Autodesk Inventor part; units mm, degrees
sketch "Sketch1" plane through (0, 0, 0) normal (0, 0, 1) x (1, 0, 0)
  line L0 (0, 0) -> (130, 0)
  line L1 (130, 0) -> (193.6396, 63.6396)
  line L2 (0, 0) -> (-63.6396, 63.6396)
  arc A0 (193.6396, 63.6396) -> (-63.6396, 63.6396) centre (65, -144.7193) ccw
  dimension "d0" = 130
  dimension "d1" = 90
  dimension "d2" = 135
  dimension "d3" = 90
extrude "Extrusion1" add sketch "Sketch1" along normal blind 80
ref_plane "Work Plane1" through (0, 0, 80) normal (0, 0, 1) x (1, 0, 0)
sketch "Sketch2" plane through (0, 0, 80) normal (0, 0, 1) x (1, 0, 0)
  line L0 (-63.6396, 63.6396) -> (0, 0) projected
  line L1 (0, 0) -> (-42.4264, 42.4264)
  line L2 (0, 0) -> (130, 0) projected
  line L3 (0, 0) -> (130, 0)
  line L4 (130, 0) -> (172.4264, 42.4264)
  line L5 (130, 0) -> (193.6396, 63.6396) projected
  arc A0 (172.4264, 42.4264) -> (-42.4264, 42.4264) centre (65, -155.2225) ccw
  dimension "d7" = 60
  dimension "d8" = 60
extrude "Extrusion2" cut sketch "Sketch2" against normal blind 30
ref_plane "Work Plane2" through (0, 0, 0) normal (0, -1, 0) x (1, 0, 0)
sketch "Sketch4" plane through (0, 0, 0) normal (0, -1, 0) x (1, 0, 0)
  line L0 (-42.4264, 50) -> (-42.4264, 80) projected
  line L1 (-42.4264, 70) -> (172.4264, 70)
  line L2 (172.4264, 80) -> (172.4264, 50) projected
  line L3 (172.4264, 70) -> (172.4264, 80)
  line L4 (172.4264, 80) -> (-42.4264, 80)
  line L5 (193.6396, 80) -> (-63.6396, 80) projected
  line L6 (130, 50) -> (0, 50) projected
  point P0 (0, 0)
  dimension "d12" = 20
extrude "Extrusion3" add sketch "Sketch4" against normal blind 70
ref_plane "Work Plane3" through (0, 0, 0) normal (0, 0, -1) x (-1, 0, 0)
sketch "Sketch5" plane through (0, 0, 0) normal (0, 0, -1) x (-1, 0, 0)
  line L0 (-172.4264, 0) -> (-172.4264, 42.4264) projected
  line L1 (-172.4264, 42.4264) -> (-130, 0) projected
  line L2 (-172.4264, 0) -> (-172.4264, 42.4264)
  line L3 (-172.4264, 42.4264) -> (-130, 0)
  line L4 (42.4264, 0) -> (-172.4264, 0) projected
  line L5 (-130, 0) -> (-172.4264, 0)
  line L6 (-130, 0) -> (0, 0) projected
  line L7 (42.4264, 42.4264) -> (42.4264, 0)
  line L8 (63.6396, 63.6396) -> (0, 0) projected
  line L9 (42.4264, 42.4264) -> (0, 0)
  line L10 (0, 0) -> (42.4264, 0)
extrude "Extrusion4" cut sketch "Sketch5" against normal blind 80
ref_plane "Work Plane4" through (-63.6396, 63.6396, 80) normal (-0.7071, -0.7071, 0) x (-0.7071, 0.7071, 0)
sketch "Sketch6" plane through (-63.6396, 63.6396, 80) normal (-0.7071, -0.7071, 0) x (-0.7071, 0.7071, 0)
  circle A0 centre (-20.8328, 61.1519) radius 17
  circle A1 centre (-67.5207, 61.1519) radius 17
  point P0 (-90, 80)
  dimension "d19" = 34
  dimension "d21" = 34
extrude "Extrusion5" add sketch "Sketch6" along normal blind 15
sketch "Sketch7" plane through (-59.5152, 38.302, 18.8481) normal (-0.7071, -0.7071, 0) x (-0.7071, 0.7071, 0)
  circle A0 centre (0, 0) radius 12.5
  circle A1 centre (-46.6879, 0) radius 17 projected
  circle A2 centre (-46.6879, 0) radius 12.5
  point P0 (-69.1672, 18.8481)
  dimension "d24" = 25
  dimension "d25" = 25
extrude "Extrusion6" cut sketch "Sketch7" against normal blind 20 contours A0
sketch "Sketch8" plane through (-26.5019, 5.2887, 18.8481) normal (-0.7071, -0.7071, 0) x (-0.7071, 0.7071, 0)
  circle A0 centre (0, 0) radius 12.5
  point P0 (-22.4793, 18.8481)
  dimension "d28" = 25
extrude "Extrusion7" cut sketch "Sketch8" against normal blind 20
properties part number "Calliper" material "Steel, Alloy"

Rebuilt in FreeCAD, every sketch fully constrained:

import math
import FreeCAD as App
import Part
import Sketcher

doc = App.newDocument("Part")
body = doc.addObject("PartDesign::Body", "Body")

# Sketch on XY plane
sketch1 = body.newObject("Sketcher::SketchObject", "Sketch")
sketch1.AttachmentSupport = (doc.getObject("XY_Plane"), [""])
sketch1.MapMode = "FlatFace"
sketch1.addGeometry([
    Part.LineSegment(App.Vector(-64, 64, 0), App.Vector(0, 0, 0)),
    Part.LineSegment(App.Vector(0, 0, 0), App.Vector(130, 0, 0)),
    Part.LineSegment(App.Vector(130, 0, 0), App.Vector(194, 64, 0)),
    Part.ArcOfCircle(Part.Circle(App.Vector(65, -145, 0), App.Vector(0, 0, 1), 245), math.radians(58), math.radians(122)),
], False)
sketch1.addConstraint([
    Sketcher.Constraint("Coincident", 0, 2, 1, 1),
    Sketcher.Constraint("Coincident", 1, 2, 2, 1),
    Sketcher.Constraint("Coincident", 2, 2, 3, 1),
    Sketcher.Constraint("Coincident", 3, 2, 0, 1),
    Sketcher.Constraint("Horizontal", 1),
    Sketcher.Constraint("Coincident", 0, 2, -1, 1),
    Sketcher.Constraint("Perpendicular", 0, 2),
    Sketcher.Constraint("Horizontal", 2, 2, 3, 2),
    Sketcher.Constraint("Equal", 0, 2),
    Sketcher.Constraint("DistanceX", 1, 1, 1, 2, 130.0),
    Sketcher.Constraint("Distance", 0, 90.0),
    Sketcher.Constraint("Radius", 3, 244.8705),
])
pad1 = body.newObject("PartDesign::Pad", "Pad")
pad1.Profile = sketch1
pad1.Length = 80

# Sketch on XY plane
sketch2 = body.newObject("Sketcher::SketchObject", "Sketch001")
sketch2.AttachmentSupport = (doc.getObject("XY_Plane"), [""])
sketch2.MapMode = "FlatFace"
sketch2.AttachmentOffset = App.Placement(App.Vector(0, 0, 80), App.Rotation())
sketch2.addGeometry([
    Part.ArcOfCircle(Part.Circle(App.Vector(65, -155, 0), App.Vector(0, 0, 1), 225), math.radians(61), math.radians(119)),
    Part.LineSegment(App.Vector(-42, 42, 0), App.Vector(0, 0, 0)),
    Part.LineSegment(App.Vector(0, 0, 0), App.Vector(130, 0, 0)),
    Part.LineSegment(App.Vector(130, 0, 0), App.Vector(172, 42, 0)),
], False)
sketch2.addConstraint([
    Sketcher.Constraint("Coincident", 0, 2, 1, 1),
    Sketcher.Constraint("Coincident", 1, 2, 2, 1),
    Sketcher.Constraint("Coincident", 2, 2, 3, 1),
    Sketcher.Constraint("Coincident", 3, 2, 0, 1),
    Sketcher.Constraint("Horizontal", 2),
    Sketcher.Constraint("Coincident", 1, 2, -1, 1),
    Sketcher.Constraint("Perpendicular", 1, 3),
    Sketcher.Constraint("Horizontal", 0, 2, 3, 2),
    Sketcher.Constraint("Equal", 1, 3),
    Sketcher.Constraint("Distance", 1, 60.0),
    Sketcher.Constraint("DistanceX", 2, 1, 2, 2, 130.0),
    Sketcher.Constraint("Radius", 0, 224.9567),
])
pocket1 = body.newObject("PartDesign::Pocket", "Pocket")
pocket1.Profile = sketch2
pocket1.Length = 30

# Sketch on XZ plane
sketch3 = body.newObject("Sketcher::SketchObject", "Sketch002")
sketch3.AttachmentSupport = (doc.getObject("XZ_Plane"), [""])
sketch3.MapMode = "FlatFace"
sketch3.addGeometry([
    Part.LineSegment(App.Vector(-42, 80, 0), App.Vector(-42, 70, 0)),
    Part.LineSegment(App.Vector(-42, 70, 0), App.Vector(172, 70, 0)),
    Part.LineSegment(App.Vector(172, 70, 0), App.Vector(172, 80, 0)),
    Part.LineSegment(App.Vector(172, 80, 0), App.Vector(-42, 80, 0)),
], False)
sketch3.addConstraint([
    Sketcher.Constraint("Coincident", 0, 2, 1, 1),
    Sketcher.Constraint("Coincident", 1, 2, 2, 1),
    Sketcher.Constraint("Coincident", 2, 2, 3, 1),
    Sketcher.Constraint("Coincident", 3, 2, 0, 1),
    Sketcher.Constraint("Vertical", 0),
    Sketcher.Constraint("Horizontal", 1),
    Sketcher.Constraint("Vertical", 2),
    Sketcher.Constraint("Horizontal", 3),
    Sketcher.Constraint("DistanceY", 0, 2, 0, 1, 10.0),
    Sketcher.Constraint("DistanceY", -1, 1, 0, 2, 70.0),
    Sketcher.Constraint("DistanceX", 1, 1, 1, 2, 214.8528),
    Sketcher.Constraint("DistanceX", 0, 2, -1, 1, 42.4264),
])
pad2 = body.newObject("PartDesign::Pad", "Pad001")
pad2.Profile = sketch3
pad2.Length = 70
pad2.Reversed = True

# Sketch on XY plane
sketch4 = body.newObject("Sketcher::SketchObject", "Sketch003")
sketch4.AttachmentSupport = (doc.getObject("XY_Plane"), [""])
sketch4.MapMode = "FlatFace"
sketch4.addGeometry([
    Part.LineSegment(App.Vector(-42, 42, 0), App.Vector(0, 0, 0)),  # 0
    Part.LineSegment(App.Vector(0, 0, 0), App.Vector(-42, 0, 0)),  # 1
    Part.LineSegment(App.Vector(-42, 0, 0), App.Vector(-42, 42, 0)),  # 2
    Part.LineSegment(App.Vector(172, 42, 0), App.Vector(172, 0, 0)),  # 3
    Part.LineSegment(App.Vector(172, 0, 0), App.Vector(130, 0, 0)),  # 4
    Part.LineSegment(App.Vector(130, 0, 0), App.Vector(172, 42, 0)),  # 5
], False)
sketch4.addConstraint([
    Sketcher.Constraint("Coincident", 0, 2, 1, 1),
    Sketcher.Constraint("Coincident", 1, 2, 2, 1),
    Sketcher.Constraint("Coincident", 2, 2, 0, 1),
    Sketcher.Constraint("Coincident", 3, 2, 4, 1),
    Sketcher.Constraint("Coincident", 4, 2, 5, 1),
    Sketcher.Constraint("Coincident", 5, 2, 3, 1),
    Sketcher.Constraint("Horizontal", 1),
    Sketcher.Constraint("Vertical", 2),
    Sketcher.Constraint("Vertical", 3),
    Sketcher.Constraint("Horizontal", 4),
    Sketcher.Constraint("Coincident", 0, 2, -1, 1),
    Sketcher.Constraint("PointOnObject", 3, 2, -1),
    Sketcher.Constraint("Perpendicular", 0, 5),
    Sketcher.Constraint("Horizontal", 2, 2, 5, 2),
    Sketcher.Constraint("Equal", 1, 4),
    Sketcher.Constraint("Distance", 0, 60.0),
    Sketcher.Constraint("DistanceX", -1, 1, 4, 2, 130.0),
])
pocket2 = body.newObject("PartDesign::Pocket", "Pocket001")
pocket2.Profile = sketch4
pocket2.Length = 80
pocket2.Reversed = True

# Sketch on an angled plane
sketch5 = body.newObject("Sketcher::SketchObject", "Sketch004")
sketch5.Placement = App.Placement(App.Vector(-63.6396, 63.6396, 80), App.Rotation(App.Vector(-0.707106781, 0.707106781, 0), App.Vector(0, 0, -0.999999999), App.Vector(-0.707106781, -0.707106781, 0), "ZXY"))
sketch5.addGeometry([
    Part.Circle(App.Vector(-21, 61, 0), App.Vector(0, 0, 1), 17),
    Part.Circle(App.Vector(-68, 61, 0), App.Vector(0, 0, 1), 17),
], False)
sketch5.addConstraint([
    Sketcher.Constraint("Equal", 0, 1),
    Sketcher.Constraint("Horizontal", 0, 3, 1, 3),
    Sketcher.Constraint("Diameter", 0, 34.0),
    Sketcher.Constraint("DistanceY", -1, 1, 0, 3, 61.152),
    Sketcher.Constraint("DistanceX", 1, 3, 0, 3, 46.688),
    Sketcher.Constraint("DistanceX", 0, 3, -1, 1, 20.8328),
])
pad3 = body.newObject("PartDesign::Pad", "Pad002")
pad3.Profile = sketch5
pad3.Length = 15

# Sketch on an angled plane
sketch6 = body.newObject("Sketcher::SketchObject", "Sketch005")
sketch6.Placement = App.Placement(App.Vector(-59.5152, 38.302, 18.8481), App.Rotation(App.Vector(-0.707106781, 0.707106781, 0), App.Vector(0, 0, -0.999999999), App.Vector(-0.707106781, -0.707106781, 0), "ZXY"))
sketch6.addGeometry(Part.Circle(App.Vector(0, 0, 0), App.Vector(0, 0, 1), 12), False)
sketch6.addConstraint([
    Sketcher.Constraint("Coincident", 0, 3, -1, 1),
    Sketcher.Constraint("Diameter", 0, 25.0),
])
pocket3 = body.newObject("PartDesign::Pocket", "Pocket002")
pocket3.Profile = sketch6
pocket3.Length = 20

# Sketch on an angled plane
sketch7 = body.newObject("Sketcher::SketchObject", "Sketch006")
sketch7.Placement = App.Placement(App.Vector(-26.5019, 5.2887, 18.8481), App.Rotation(App.Vector(-0.707106781, 0.707106781, 0), App.Vector(0, 0, -0.999999999), App.Vector(-0.707106781, -0.707106781, 0), "ZXY"))
sketch7.addGeometry(Part.Circle(App.Vector(0, 0, 0), App.Vector(0, 0, 1), 12), False)
sketch7.addConstraint([
    Sketcher.Constraint("Coincident", 0, 3, -1, 1),
    Sketcher.Constraint("Diameter", 0, 25.0),
])
pocket4 = body.newObject("PartDesign::Pocket", "Pocket003")
pocket4.Profile = sketch7
pocket4.Length = 20

doc.recompute()
